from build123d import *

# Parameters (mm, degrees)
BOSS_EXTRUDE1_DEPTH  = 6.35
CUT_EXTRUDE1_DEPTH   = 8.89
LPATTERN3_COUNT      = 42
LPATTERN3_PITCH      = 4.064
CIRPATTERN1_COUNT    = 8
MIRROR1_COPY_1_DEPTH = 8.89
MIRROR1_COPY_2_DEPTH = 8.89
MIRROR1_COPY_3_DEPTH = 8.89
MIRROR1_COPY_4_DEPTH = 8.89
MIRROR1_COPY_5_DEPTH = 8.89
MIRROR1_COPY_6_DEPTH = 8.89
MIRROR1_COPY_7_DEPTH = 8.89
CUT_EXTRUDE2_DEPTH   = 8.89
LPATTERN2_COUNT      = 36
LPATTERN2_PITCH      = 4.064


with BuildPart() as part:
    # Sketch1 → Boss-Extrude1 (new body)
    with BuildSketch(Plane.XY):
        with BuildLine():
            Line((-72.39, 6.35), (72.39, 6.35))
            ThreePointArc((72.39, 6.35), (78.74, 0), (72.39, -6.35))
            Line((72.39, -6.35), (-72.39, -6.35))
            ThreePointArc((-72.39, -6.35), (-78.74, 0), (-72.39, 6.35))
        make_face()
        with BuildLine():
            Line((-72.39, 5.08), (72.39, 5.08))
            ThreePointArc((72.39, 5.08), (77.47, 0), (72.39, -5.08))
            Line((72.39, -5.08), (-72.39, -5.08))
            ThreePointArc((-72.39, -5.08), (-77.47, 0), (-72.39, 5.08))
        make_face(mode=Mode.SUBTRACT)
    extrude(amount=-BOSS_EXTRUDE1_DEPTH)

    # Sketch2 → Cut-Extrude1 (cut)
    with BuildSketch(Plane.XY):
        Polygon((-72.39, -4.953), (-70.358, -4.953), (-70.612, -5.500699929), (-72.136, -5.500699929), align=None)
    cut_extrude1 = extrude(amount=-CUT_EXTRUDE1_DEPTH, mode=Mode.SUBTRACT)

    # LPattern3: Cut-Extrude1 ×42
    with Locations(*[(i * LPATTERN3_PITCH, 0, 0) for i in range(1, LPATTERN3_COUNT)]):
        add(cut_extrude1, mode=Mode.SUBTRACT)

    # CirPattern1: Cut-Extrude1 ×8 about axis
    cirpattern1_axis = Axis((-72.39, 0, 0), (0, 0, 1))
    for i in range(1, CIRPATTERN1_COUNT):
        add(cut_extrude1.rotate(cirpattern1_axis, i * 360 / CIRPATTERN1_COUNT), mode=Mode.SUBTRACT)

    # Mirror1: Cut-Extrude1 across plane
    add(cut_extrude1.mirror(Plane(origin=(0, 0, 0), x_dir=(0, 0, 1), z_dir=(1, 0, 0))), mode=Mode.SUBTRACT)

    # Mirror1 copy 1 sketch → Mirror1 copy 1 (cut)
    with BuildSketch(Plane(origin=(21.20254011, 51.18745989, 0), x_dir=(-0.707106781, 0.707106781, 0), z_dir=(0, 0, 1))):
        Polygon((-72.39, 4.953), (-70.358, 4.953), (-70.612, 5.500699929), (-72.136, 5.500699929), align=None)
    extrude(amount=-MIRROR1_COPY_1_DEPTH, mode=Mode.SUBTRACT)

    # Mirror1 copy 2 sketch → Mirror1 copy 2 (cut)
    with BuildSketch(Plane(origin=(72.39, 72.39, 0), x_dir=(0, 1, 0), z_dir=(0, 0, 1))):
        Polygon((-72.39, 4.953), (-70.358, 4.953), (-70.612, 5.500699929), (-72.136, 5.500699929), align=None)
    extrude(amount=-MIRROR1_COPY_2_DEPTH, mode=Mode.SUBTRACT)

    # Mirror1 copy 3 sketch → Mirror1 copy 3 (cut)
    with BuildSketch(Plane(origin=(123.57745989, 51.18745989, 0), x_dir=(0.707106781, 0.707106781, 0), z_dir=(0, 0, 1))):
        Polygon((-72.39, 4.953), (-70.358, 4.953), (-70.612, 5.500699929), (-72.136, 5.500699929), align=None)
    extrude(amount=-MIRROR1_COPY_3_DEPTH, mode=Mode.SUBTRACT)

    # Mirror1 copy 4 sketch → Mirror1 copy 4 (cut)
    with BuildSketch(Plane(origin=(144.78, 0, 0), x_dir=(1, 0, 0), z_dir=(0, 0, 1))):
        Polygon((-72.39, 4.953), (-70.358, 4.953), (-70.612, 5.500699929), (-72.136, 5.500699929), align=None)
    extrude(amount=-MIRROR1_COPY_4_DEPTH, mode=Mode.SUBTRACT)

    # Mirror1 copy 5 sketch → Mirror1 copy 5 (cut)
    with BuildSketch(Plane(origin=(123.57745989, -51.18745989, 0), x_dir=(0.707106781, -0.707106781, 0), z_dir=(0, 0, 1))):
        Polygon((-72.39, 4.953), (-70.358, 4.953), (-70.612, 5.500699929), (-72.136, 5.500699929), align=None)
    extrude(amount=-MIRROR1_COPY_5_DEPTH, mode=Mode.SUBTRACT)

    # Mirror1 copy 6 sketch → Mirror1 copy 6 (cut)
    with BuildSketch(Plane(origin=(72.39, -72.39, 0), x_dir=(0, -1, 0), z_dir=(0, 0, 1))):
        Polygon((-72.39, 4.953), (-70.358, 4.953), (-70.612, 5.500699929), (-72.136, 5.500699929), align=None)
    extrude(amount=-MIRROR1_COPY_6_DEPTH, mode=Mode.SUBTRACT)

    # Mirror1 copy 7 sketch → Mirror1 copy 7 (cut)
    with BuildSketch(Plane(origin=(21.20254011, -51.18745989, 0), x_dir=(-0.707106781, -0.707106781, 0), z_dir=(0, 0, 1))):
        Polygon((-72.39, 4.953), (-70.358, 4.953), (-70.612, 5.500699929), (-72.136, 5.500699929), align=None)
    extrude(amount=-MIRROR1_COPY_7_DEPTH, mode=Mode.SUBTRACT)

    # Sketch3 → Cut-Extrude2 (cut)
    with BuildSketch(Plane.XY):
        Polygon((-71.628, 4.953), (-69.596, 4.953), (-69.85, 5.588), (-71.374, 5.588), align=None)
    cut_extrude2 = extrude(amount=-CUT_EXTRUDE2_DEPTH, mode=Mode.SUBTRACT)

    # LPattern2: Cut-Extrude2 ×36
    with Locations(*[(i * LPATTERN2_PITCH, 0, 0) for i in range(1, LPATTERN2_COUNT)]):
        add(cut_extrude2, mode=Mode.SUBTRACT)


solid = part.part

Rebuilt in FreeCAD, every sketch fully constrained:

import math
import FreeCAD as App
import Part
import Sketcher
Q = App.Units.Quantity

doc = App.newDocument("Part")
body = doc.addObject("PartDesign::Body", "Body")

sketch1 = body.newObject("Sketcher::SketchObject", "Sketch")
sketch1.AttachmentSupport = (doc.getObject("XY_Plane"), [""])
sketch1.MapMode = "FlatFace"
sketch1.addGeometry([
    Part.LineSegment(App.Vector(72, 6, 0), App.Vector(-72, 6, 0)),
    Part.ArcOfCircle(Part.Circle(App.Vector(-72, 0, 0), App.Vector(0, 0, 1), 6), math.radians(90), math.radians(270)),
    Part.LineSegment(App.Vector(-72, -6, 0), App.Vector(72, -6, 0)),
    Part.ArcOfCircle(Part.Circle(App.Vector(72, 0, 0), App.Vector(0, 0, 1), 6), math.radians(-90), math.radians(90)),
    Part.LineSegment(App.Vector(-72, 5, 0), App.Vector(72, 5, 0)),
    Part.ArcOfCircle(Part.Circle(App.Vector(72, 0, 0), App.Vector(0, 0, 1), 5), math.radians(-90), math.radians(90)),
    Part.LineSegment(App.Vector(72, -5, 0), App.Vector(-72, -5, 0)),
    Part.ArcOfCircle(Part.Circle(App.Vector(-72, 0, 0), App.Vector(0, 0, 1), 5), math.radians(90), math.radians(270)),
], False)
sketch1.addConstraint([
    Sketcher.Constraint("Tangent", 0, 2, 1, 1),
    Sketcher.Constraint("Tangent", 1, 2, 2, 1),
    Sketcher.Constraint("Tangent", 2, 2, 3, 1),
    Sketcher.Constraint("Tangent", 3, 2, 0, 1),
    Sketcher.Constraint("Tangent", 4, 2, 5, 2),
    Sketcher.Constraint("Tangent", 5, 1, 6, 1),
    Sketcher.Constraint("Tangent", 6, 2, 7, 2),
    Sketcher.Constraint("Tangent", 7, 1, 4, 1),
    Sketcher.Constraint("Horizontal", 0),
    Sketcher.Constraint("Horizontal", 2),
    Sketcher.Constraint("Horizontal", 4),
    Sketcher.Constraint("Horizontal", 6),
    Sketcher.Constraint("Coincident", 5, 3, 3, 3),
    Sketcher.Constraint("Symmetric", 1, 3, 3, 3, -1, 1),
    Sketcher.Constraint("Vertical", 7, 3, 0, 2),
    Sketcher.Constraint("Radius", 5, Q("0.2 in")),
    Sketcher.Constraint("Radius", 1, Q("0.25 in")),
    Sketcher.Constraint("DistanceX", 0, 2, 0, 1, Q("5.7 in")),
])
pad1 = body.newObject("PartDesign::Pad", "Pad")
pad1.Profile = sketch1
pad1.Length = Q("0.25 in")
pad1.Reversed = True

sketch2 = body.newObject("Sketcher::SketchObject", "Sketch001")
sketch2.AttachmentSupport = (doc.getObject("XY_Plane"), [""])
sketch2.MapMode = "FlatFace"
sketch2.addGeometry([
    Part.LineSegment(App.Vector(-70.4, -5, 0), App.Vector(-72.4, -5, 0)),
    Part.LineSegment(App.Vector(-72.4, -5, 0), App.Vector(-72.1, -5.5, 0)),
    Part.LineSegment(App.Vector(-72.1, -5.5, 0), App.Vector(-70.6, -5.5, 0)),
    Part.LineSegment(App.Vector(-70.6, -5.5, 0), App.Vector(-70.4, -5, 0)),
], False)
sketch2.addConstraint([
    Sketcher.Constraint("Coincident", 0, 2, 1, 1),
    Sketcher.Constraint("Coincident", 1, 2, 2, 1),
    Sketcher.Constraint("Coincident", 2, 2, 3, 1),
    Sketcher.Constraint("Coincident", 3, 2, 0, 1),
    Sketcher.Constraint("Horizontal", 0),
    Sketcher.Constraint("Horizontal", 2),
    Sketcher.Constraint("Equal", 1, 3),
    Sketcher.Constraint("DistanceX", 0, 2, 0, 1, Q("0.08 in")),
    Sketcher.Constraint("DistanceX", 2, 1, 2, 2, Q("0.06 in")),
    Sketcher.Constraint("DistanceX", 0, 2, -1, 1, Q("2.85 in")),
    Sketcher.Constraint("DistanceY", 0, 2, -1, 1, Q("0.195 in")),
    Sketcher.Constraint("DistanceY", 1, 2, -1, 1, 5.5007),
])
pocket1 = body.newObject("PartDesign::Pocket", "Pocket")
pocket1.Profile = sketch2
pocket1.Length = Q("0.35 in")
doc.recompute()

linearpattern = body.newObject("PartDesign::LinearPattern", "LinearPattern")
linearpattern.Originals = [pocket1]
linearpattern.Direction = (doc.getObject("X_Axis"), [""])
linearpattern.Mode = "offset"
linearpattern.Offset = Q("0.16 in")
linearpattern.Occurrences = 42
body.Tip = linearpattern
doc.recompute()

datumline = body.newObject("PartDesign::Line", "DatumLine")
datumline.Placement = App.Placement(App.Vector(-72.39, 0, 0), App.Rotation(App.Vector(0, 0, 1), App.Vector(0, 0, 1)))
polarpattern = body.newObject("PartDesign::PolarPattern", "PolarPattern")
polarpattern.Originals = [pocket1]
polarpattern.Axis = (datumline, [""])
polarpattern.Angle = 360
polarpattern.Occurrences = 8
body.Tip = polarpattern
doc.recompute()

mirrored = body.newObject("PartDesign::Mirrored", "Mirrored")
mirrored.Originals = [pocket1]
mirrored.MirrorPlane = (doc.getObject("YZ_Plane"), [""])
body.Tip = mirrored

sketch3 = body.newObject("Sketcher::SketchObject", "Sketch002")
sketch3.AttachmentSupport = (doc.getObject("XY_Plane"), [""])
sketch3.MapMode = "FlatFace"
sketch3.addGeometry([
    Part.LineSegment(App.Vector(68.9, -3.5, 0), App.Vector(67.5, -2.1, 0)),
    Part.LineSegment(App.Vector(67.5, -2.1, 0), App.Vector(67.2, -2.6, 0)),
    Part.LineSegment(App.Vector(67.2, -2.6, 0), App.Vector(68.3, -3.7, 0)),
    Part.LineSegment(App.Vector(68.3, -3.7, 0), App.Vector(68.9, -3.5, 0)),
], False)
sketch3.addConstraint([
    Sketcher.Constraint("Coincident", 0, 2, 1, 1),
    Sketcher.Constraint("Coincident", 1, 2, 2, 1),
    Sketcher.Constraint("Coincident", 2, 2, 3, 1),
    Sketcher.Constraint("Coincident", 3, 2, 0, 1),
    Sketcher.Constraint("Parallel", 0, 2),
    Sketcher.Constraint("Equal", 1, 3),
    Sketcher.Constraint("Angle", 0, Q("135 deg")),
    Sketcher.Constraint("Distance", 0, Q("0.08 in")),
    Sketcher.Constraint("Distance", 2, Q("0.06 in")),
    Sketcher.Constraint("DistanceX", -1, 1, 3, 2, 68.8877),
    Sketcher.Constraint("DistanceY", 3, 2, -1, 1, 3.5023),
    Sketcher.Constraint("Distance", 1, 0.603731),
])
pocket2 = body.newObject("PartDesign::Pocket", "Pocket001")
pocket2.Profile = sketch3
pocket2.Length = Q("0.35 in")

sketch4 = body.newObject("Sketcher::SketchObject", "Sketch003")
sketch4.AttachmentSupport = (doc.getObject("XY_Plane"), [""])
sketch4.MapMode = "FlatFace"
sketch4.addGeometry([
    Part.LineSegment(App.Vector(67.4, 0, 0), App.Vector(67.4, 2, 0)),
    Part.LineSegment(App.Vector(67.4, 2, 0), App.Vector(66.9, 1.8, 0)),
    Part.LineSegment(App.Vector(66.9, 1.8, 0), App.Vector(66.9, 0.3, 0)),
    Part.LineSegment(App.Vector(66.9, 0.3, 0), App.Vector(67.4, 0, 0)),
], False)
sketch4.addConstraint([
    Sketcher.Constraint("Coincident", 0, 2, 1, 1),
    Sketcher.Constraint("Coincident", 1, 2, 2, 1),
    Sketcher.Constraint("Coincident", 2, 2, 3, 1),
    Sketcher.Constraint("Coincident", 3, 2, 0, 1),
    Sketcher.Constraint("Vertical", 0),
    Sketcher.Constraint("Vertical", 2),
    Sketcher.Constraint("PointOnObject", 3, 2, -1),
    Sketcher.Constraint("Equal", 1, 3),
    Sketcher.Constraint("DistanceY", 0, 1, 0, 2, Q("0.08 in")),
    Sketcher.Constraint("DistanceY", 2, 2, 2, 1, Q("0.06 in")),
    Sketcher.Constraint("DistanceX", -1, 1, 0, 2, Q("2.655 in")),
    Sketcher.Constraint("DistanceX", -1, 1, 1, 2, 66.8893),
])
pocket3 = body.newObject("PartDesign::Pocket", "Pocket002")
pocket3.Profile = sketch4
pocket3.Length = Q("0.35 in")

sketch5 = body.newObject("Sketcher::SketchObject", "Sketch004")
sketch5.AttachmentSupport = (doc.getObject("XY_Plane"), [""])
sketch5.MapMode = "FlatFace"
sketch5.addGeometry([
    Part.LineSegment(App.Vector(68.9, 3.5, 0), App.Vector(70.3, 4.9, 0)),
    Part.LineSegment(App.Vector(70.3, 4.9, 0), App.Vector(69.8, 5.1, 0)),
    Part.LineSegment(App.Vector(69.8, 5.1, 0), App.Vector(68.7, 4.1, 0)),
    Part.LineSegment(App.Vector(68.7, 4.1, 0), App.Vector(68.9, 3.5, 0)),
], False)
sketch5.addConstraint([
    Sketcher.Constraint("Coincident", 0, 2, 1, 1),
    Sketcher.Constraint("Coincident", 1, 2, 2, 1),
    Sketcher.Constraint("Coincident", 2, 2, 3, 1),
    Sketcher.Constraint("Coincident", 3, 2, 0, 1),
    Sketcher.Constraint("Parallel", 0, 2),
    Sketcher.Constraint("Equal", 1, 3),
    Sketcher.Constraint("Angle", 0, Q("45 deg")),
    Sketcher.Constraint("Distance", 0, Q("0.08 in")),
    Sketcher.Constraint("Distance", 2, Q("0.06 in")),
    Sketcher.Constraint("DistanceX", -1, 1, 3, 2, 68.8877),
    Sketcher.Constraint("DistanceY", -1, 1, 3, 2, 3.5023),
    Sketcher.Constraint("Distance", 1, 0.603731),
])
pocket4 = body.newObject("PartDesign::Pocket", "Pocket003")
pocket4.Profile = sketch5
pocket4.Length = Q("0.35 in")

sketch6 = body.newObject("Sketcher::SketchObject", "Sketch005")
sketch6.AttachmentSupport = (doc.getObject("XY_Plane"), [""])
sketch6.MapMode = "FlatFace"
sketch6.addGeometry([
    Part.LineSegment(App.Vector(72.4, 5, 0), App.Vector(74.4, 5, 0)),
    Part.LineSegment(App.Vector(74.4, 5, 0), App.Vector(74.2, 5.5, 0)),
    Part.LineSegment(App.Vector(74.2, 5.5, 0), App.Vector(72.6, 5.5, 0)),
    Part.LineSegment(App.Vector(72.6, 5.5, 0), App.Vector(72.4, 5, 0)),
], False)
sketch6.addConstraint([
    Sketcher.Constraint("Coincident", 0, 2, 1, 1),
    Sketcher.Constraint("Coincident", 1, 2, 2, 1),
    Sketcher.Constraint("Coincident", 2, 2, 3, 1),
    Sketcher.Constraint("Coincident", 3, 2, 0, 1),
    Sketcher.Constraint("Horizontal", 0),
    Sketcher.Constraint("Horizontal", 2),
    Sketcher.Constraint("Equal", 1, 3),
    Sketcher.Constraint("DistanceX", 0, 1, 0, 2, Q("0.08 in")),
    Sketcher.Constraint("DistanceX", 2, 2, 2, 1, Q("0.06 in")),
    Sketcher.Constraint("DistanceX", -1, 1, 0, 2, Q("2.93 in")),
    Sketcher.Constraint("DistanceY", -1, 1, 0, 2, Q("0.195 in")),
    Sketcher.Constraint("DistanceY", -1, 1, 1, 2, 5.5007),
])
pocket5 = body.newObject("PartDesign::Pocket", "Pocket004")
pocket5.Profile = sketch6
pocket5.Length = Q("0.35 in")

sketch7 = body.newObject("Sketcher::SketchObject", "Sketch006")
sketch7.AttachmentSupport = (doc.getObject("XY_Plane"), [""])
sketch7.MapMode = "FlatFace"
sketch7.addGeometry([
    Part.LineSegment(App.Vector(75.9, 3.5, 0), App.Vector(77.3, 2.1, 0)),
    Part.LineSegment(App.Vector(77.3, 2.1, 0), App.Vector(77.5, 2.6, 0)),
    Part.LineSegment(App.Vector(77.5, 2.6, 0), App.Vector(76.5, 3.7, 0)),
    Part.LineSegment(App.Vector(76.5, 3.7, 0), App.Vector(75.9, 3.5, 0)),
], False)
sketch7.addConstraint([
    Sketcher.Constraint("Coincident", 0, 2, 1, 1),
    Sketcher.Constraint("Coincident", 1, 2, 2, 1),
    Sketcher.Constraint("Coincident", 2, 2, 3, 1),
    Sketcher.Constraint("Coincident", 3, 2, 0, 1),
    Sketcher.Constraint("Parallel", 0, 2),
    Sketcher.Constraint("Equal", 1, 3),
    Sketcher.Constraint("Angle", 0, Q("-45 deg")),
    Sketcher.Constraint("Distance", 0, Q("0.08 in")),
    Sketcher.Constraint("Distance", 2, Q("0.06 in")),
    Sketcher.Constraint("DistanceX", -1, 1, 3, 2, 75.8923),
    Sketcher.Constraint("DistanceY", -1, 1, 3, 2, 3.5023),
    Sketcher.Constraint("Distance", 1, 0.603731),
])
pocket6 = body.newObject("PartDesign::Pocket", "Pocket005")
pocket6.Profile = sketch7
pocket6.Length = Q("0.35 in")

sketch8 = body.newObject("Sketcher::SketchObject", "Sketch007")
sketch8.AttachmentSupport = (doc.getObject("XY_Plane"), [""])
sketch8.MapMode = "FlatFace"
sketch8.addGeometry([
    Part.LineSegment(App.Vector(77.3, 0, 0), App.Vector(77.3, -2, 0)),
    Part.LineSegment(App.Vector(77.3, -2, 0), App.Vector(77.9, -1.8, 0)),
    Part.LineSegment(App.Vector(77.9, -1.8, 0), App.Vector(77.9, -0.3, 0)),
    Part.LineSegment(App.Vector(77.9, -0.3, 0), App.Vector(77.3, 0, 0)),
], False)
sketch8.addConstraint([
    Sketcher.Constraint("Coincident", 0, 2, 1, 1),
    Sketcher.Constraint("Coincident", 1, 2, 2, 1),
    Sketcher.Constraint("Coincident", 2, 2, 3, 1),
    Sketcher.Constraint("Coincident", 3, 2, 0, 1),
    Sketcher.Constraint("Vertical", 0),
    Sketcher.Constraint("Vertical", 2),
    Sketcher.Constraint("PointOnObject", 3, 2, -1),
    Sketcher.Constraint("Equal", 1, 3),
    Sketcher.Constraint("DistanceY", 0, 2, 0, 1, Q("0.08 in")),
    Sketcher.Constraint("DistanceY", 2, 1, 2, 2, Q("0.06 in")),
    Sketcher.Constraint("DistanceX", -1, 1, 0, 2, Q("3.045 in")),
    Sketcher.Constraint("DistanceX", -1, 1, 1, 2, 77.8907),
])
pocket7 = body.newObject("PartDesign::Pocket", "Pocket006")
pocket7.Profile = sketch8
pocket7.Length = Q("0.35 in")

sketch9 = body.newObject("Sketcher::SketchObject", "Sketch008")
sketch9.AttachmentSupport = (doc.getObject("XY_Plane"), [""])
sketch9.MapMode = "FlatFace"
sketch9.addGeometry([
    Part.LineSegment(App.Vector(75.9, -3.5, 0), App.Vector(74.5, -4.9, 0)),
    Part.LineSegment(App.Vector(74.5, -4.9, 0), App.Vector(75, -5.1, 0)),
    Part.LineSegment(App.Vector(75, -5.1, 0), App.Vector(76.1, -4.1, 0)),
    Part.LineSegment(App.Vector(76.1, -4.1, 0), App.Vector(75.9, -3.5, 0)),
], False)
sketch9.addConstraint([
    Sketcher.Constraint("Coincident", 0, 2, 1, 1),
    Sketcher.Constraint("Coincident", 1, 2, 2, 1),
    Sketcher.Constraint("Coincident", 2, 2, 3, 1),
    Sketcher.Constraint("Coincident", 3, 2, 0, 1),
    Sketcher.Constraint("Parallel", 0, 2),
    Sketcher.Constraint("Equal", 1, 3),
    Sketcher.Constraint("Angle", 0, Q("-135 deg")),
    Sketcher.Constraint("Distance", 0, Q("0.08 in")),
    Sketcher.Constraint("Distance", 2, Q("0.06 in")),
    Sketcher.Constraint("DistanceX", -1, 1, 3, 2, 75.8923),
    Sketcher.Constraint("DistanceY", 3, 2, -1, 1, 3.5023),
    Sketcher.Constraint("Distance", 1, 0.603731),
])
pocket8 = body.newObject("PartDesign::Pocket", "Pocket007")
pocket8.Profile = sketch9
pocket8.Length = Q("0.35 in")

sketch10 = body.newObject("Sketcher::SketchObject", "Sketch009")
sketch10.AttachmentSupport = (doc.getObject("XY_Plane"), [""])
sketch10.MapMode = "FlatFace"
sketch10.addGeometry([
    Part.LineSegment(App.Vector(-71.6, 5, 0), App.Vector(-69.6, 5, 0)),
    Part.LineSegment(App.Vector(-69.6, 5, 0), App.Vector(-69.8, 5.6, 0)),
    Part.LineSegment(App.Vector(-69.8, 5.6, 0), App.Vector(-71.4, 5.6, 0)),
    Part.LineSegment(App.Vector(-71.4, 5.6, 0), App.Vector(-71.6, 5, 0)),
], False)
sketch10.addConstraint([
    Sketcher.Constraint("Coincident", 0, 2, 1, 1),
    Sketcher.Constraint("Coincident", 1, 2, 2, 1),
    Sketcher.Constraint("Coincident", 2, 2, 3, 1),
    Sketcher.Constraint("Coincident", 3, 2, 0, 1),
    Sketcher.Constraint("Horizontal", 0),
    Sketcher.Constraint("Horizontal", 2),
    Sketcher.Constraint("Equal", 1, 3),
    Sketcher.Constraint("DistanceX", 0, 1, 0, 2, Q("0.08 in")),
    Sketcher.Constraint("DistanceX", 2, 2, 2, 1, Q("0.06 in")),
    Sketcher.Constraint("DistanceX", 0, 2, -1, 1, Q("2.74 in")),
    Sketcher.Constraint("DistanceY", -1, 1, 1, 2, Q("0.22 in")),
    Sketcher.Constraint("DistanceY", -1, 1, 0, 2, Q("0.195 in")),
])
pocket9 = body.newObject("PartDesign::Pocket", "Pocket008")
pocket9.Profile = sketch10
pocket9.Length = Q("0.35 in")
doc.recompute()

linearpattern2 = body.newObject("PartDesign::LinearPattern", "LinearPattern001")
linearpattern2.Originals = [pocket9]
linearpattern2.Direction = (doc.getObject("X_Axis"), [""])
linearpattern2.Mode = "offset"
linearpattern2.Offset = Q("0.16 in")
linearpattern2.Occurrences = 36
body.Tip = linearpattern2

doc.recompute()
